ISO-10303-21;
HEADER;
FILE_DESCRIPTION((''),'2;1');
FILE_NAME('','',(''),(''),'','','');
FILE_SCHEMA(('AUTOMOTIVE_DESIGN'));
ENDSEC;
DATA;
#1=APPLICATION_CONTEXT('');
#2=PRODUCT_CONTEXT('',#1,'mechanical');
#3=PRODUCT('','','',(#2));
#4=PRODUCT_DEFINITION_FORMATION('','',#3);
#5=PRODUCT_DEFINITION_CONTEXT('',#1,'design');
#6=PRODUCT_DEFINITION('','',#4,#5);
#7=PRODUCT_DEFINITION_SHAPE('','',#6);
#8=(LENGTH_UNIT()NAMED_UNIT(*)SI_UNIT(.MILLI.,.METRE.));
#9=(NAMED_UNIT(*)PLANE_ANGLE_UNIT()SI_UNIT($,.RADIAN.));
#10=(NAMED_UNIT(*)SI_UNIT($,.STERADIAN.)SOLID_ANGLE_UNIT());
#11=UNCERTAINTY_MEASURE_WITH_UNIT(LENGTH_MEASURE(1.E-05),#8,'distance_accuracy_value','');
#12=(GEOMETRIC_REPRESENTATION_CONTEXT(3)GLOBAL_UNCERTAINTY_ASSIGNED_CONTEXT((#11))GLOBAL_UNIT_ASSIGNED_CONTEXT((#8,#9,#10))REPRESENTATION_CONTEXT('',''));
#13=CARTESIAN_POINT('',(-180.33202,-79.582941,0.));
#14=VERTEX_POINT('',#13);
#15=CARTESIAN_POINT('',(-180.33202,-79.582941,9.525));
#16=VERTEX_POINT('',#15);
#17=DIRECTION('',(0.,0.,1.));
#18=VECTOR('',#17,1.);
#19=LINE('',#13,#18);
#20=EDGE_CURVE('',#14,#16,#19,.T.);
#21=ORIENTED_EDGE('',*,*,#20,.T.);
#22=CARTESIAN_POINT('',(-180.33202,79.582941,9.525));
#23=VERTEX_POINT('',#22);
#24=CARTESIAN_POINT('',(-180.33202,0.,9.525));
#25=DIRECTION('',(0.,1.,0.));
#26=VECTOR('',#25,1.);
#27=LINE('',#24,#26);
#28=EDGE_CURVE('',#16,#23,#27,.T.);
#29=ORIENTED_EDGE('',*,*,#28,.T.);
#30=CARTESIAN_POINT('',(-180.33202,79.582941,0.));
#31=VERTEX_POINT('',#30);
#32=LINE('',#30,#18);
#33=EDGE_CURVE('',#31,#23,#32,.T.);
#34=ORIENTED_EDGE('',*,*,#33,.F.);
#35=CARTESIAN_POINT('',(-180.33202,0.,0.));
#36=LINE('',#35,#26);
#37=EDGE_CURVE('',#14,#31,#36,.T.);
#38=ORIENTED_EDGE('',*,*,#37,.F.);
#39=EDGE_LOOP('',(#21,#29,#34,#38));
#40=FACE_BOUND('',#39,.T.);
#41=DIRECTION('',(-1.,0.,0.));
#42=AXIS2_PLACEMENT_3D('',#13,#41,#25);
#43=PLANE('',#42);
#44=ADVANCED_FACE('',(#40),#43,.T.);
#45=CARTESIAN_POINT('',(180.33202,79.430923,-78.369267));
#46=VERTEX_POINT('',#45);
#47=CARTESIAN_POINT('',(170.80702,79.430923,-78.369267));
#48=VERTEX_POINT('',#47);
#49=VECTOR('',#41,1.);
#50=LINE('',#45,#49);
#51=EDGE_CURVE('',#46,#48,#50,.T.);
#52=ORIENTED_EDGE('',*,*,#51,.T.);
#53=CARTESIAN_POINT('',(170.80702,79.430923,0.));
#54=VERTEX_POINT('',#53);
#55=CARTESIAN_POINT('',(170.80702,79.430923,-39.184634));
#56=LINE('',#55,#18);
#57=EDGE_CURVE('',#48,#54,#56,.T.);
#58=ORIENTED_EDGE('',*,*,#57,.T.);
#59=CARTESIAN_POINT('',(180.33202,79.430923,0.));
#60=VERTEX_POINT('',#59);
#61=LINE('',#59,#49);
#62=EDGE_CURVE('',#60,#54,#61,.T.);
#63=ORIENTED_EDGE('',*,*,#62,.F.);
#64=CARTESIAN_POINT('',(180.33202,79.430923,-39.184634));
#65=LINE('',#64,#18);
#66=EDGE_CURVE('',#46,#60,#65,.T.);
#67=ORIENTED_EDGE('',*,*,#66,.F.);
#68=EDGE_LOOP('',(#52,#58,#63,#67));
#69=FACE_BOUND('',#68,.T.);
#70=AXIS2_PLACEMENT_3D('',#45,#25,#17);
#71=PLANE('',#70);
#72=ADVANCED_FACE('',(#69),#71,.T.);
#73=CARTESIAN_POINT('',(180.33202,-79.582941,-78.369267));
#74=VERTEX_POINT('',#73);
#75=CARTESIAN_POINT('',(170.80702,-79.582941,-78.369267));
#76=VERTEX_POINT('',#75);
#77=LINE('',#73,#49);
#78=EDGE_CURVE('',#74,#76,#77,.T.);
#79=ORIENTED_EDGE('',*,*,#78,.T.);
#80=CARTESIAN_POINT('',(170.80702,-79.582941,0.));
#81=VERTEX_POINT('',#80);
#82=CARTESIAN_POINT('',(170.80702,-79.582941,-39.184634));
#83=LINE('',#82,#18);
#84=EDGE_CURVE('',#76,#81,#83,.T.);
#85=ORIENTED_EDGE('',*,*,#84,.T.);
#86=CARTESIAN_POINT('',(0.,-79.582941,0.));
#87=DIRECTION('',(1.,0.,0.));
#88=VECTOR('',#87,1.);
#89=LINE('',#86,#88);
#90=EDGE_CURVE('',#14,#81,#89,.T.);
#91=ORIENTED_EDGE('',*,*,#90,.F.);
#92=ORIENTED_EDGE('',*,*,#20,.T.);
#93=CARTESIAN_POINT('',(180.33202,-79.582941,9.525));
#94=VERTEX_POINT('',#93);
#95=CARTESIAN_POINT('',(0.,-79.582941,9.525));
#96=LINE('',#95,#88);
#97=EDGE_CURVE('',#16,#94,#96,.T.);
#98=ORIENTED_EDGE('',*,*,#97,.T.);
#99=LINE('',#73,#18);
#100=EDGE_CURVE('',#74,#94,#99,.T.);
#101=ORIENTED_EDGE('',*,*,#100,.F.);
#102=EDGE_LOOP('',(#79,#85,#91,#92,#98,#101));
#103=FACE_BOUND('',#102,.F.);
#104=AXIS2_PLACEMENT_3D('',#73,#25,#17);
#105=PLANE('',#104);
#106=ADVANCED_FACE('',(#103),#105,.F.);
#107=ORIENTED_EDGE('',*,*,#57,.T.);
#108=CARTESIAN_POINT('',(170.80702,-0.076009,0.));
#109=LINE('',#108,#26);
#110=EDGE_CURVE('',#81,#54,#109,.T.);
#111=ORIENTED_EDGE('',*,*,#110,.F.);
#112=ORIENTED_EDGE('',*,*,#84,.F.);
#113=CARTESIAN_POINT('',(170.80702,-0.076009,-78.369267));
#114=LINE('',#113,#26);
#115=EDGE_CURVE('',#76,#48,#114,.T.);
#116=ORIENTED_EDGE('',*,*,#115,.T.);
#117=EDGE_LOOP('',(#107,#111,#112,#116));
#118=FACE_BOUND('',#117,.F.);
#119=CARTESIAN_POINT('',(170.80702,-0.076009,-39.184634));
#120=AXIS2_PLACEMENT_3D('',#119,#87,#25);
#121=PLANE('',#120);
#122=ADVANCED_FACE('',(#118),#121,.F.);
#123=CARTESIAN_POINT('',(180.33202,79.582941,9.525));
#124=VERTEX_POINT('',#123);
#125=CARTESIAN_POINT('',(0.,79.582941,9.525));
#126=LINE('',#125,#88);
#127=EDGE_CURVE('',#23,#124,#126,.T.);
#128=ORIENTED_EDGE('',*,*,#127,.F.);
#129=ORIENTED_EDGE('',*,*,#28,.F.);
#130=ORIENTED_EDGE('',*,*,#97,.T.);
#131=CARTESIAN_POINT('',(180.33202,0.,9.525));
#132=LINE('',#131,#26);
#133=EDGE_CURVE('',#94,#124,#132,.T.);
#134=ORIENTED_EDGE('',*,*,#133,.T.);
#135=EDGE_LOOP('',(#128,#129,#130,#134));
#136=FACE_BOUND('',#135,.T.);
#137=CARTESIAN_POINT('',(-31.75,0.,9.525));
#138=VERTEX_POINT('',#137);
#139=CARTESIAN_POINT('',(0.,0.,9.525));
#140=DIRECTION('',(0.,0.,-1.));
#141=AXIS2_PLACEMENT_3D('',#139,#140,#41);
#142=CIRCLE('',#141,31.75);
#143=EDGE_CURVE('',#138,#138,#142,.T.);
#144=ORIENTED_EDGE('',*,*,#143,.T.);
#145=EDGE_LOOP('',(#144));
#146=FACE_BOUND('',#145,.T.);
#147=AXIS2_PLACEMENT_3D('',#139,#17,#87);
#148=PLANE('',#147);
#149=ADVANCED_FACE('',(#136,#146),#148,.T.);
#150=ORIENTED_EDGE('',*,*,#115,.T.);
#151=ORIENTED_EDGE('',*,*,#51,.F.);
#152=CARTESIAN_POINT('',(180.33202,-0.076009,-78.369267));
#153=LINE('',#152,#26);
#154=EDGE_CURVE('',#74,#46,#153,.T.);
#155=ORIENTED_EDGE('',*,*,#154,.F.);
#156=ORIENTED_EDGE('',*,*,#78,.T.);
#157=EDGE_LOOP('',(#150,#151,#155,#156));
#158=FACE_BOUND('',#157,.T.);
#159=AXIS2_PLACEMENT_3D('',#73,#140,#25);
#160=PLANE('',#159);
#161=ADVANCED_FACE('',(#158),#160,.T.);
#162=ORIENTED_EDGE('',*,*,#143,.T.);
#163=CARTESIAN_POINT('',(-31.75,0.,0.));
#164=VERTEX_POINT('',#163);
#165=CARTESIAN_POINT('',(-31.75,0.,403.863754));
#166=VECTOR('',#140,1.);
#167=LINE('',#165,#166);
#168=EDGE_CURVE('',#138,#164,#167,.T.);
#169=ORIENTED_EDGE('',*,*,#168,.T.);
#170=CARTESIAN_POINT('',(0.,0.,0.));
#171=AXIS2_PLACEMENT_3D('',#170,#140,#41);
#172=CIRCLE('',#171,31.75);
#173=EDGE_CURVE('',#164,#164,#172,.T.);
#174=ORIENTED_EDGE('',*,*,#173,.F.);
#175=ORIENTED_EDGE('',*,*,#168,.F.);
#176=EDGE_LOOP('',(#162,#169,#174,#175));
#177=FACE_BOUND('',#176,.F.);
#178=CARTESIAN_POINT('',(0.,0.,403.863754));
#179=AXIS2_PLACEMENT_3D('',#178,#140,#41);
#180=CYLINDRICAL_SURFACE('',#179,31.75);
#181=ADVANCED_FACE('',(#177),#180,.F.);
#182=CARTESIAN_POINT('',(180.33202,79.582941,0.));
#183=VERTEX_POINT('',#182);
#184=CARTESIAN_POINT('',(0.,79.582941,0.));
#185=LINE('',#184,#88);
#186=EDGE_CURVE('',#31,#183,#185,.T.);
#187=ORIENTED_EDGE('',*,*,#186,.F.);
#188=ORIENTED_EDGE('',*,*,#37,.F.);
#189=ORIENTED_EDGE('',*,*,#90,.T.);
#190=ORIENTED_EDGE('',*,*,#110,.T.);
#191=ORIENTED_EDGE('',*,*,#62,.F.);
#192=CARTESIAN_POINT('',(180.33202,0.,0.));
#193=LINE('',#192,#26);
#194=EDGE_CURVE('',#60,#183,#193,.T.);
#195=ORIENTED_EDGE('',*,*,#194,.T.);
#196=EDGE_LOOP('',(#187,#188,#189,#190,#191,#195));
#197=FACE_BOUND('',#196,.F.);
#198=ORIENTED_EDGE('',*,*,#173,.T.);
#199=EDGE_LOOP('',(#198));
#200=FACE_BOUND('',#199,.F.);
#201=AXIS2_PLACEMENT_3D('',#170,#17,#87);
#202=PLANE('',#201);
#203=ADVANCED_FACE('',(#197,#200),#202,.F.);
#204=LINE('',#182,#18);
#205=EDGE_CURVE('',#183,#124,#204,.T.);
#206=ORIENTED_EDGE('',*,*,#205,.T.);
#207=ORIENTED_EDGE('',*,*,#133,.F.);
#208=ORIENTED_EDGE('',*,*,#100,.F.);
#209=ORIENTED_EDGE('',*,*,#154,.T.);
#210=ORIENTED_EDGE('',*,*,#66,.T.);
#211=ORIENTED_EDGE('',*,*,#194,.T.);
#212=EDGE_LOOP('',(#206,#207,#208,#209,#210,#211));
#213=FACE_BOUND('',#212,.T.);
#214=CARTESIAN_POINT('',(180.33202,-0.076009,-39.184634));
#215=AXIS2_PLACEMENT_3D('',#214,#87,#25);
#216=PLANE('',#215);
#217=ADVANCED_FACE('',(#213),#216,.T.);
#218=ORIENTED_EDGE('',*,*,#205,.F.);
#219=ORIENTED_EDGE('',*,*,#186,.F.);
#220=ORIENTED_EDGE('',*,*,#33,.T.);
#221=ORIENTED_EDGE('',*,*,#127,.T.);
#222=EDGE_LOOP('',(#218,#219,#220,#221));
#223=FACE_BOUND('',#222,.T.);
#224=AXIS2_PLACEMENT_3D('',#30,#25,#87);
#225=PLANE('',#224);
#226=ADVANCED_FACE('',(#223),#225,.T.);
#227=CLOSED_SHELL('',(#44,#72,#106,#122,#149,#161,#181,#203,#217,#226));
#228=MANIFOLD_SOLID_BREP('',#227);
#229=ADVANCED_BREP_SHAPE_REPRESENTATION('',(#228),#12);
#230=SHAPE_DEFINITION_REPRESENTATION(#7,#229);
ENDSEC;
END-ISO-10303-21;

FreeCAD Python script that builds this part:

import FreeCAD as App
import Part
import Sketcher
from FreeCAD import Vector
Q = App.Units.Quantity

doc = App.newDocument("Part")
body = doc.addObject("PartDesign::Body", "Body")

# Sketch on XY plane
sketch1 = body.newObject("Sketcher::SketchObject", "Sketch")
sketch1.AttachmentSupport = (doc.getObject("XY_Plane"), [""])
sketch1.MapMode = "FlatFace"
sketch1.addGeometry([
    Part.LineSegment(Vector(-180, 80, 0), Vector(-180, -80, 0)),
    Part.LineSegment(Vector(-180, -80, 0), Vector(180, -80, 0)),
    Part.LineSegment(Vector(180, -80, 0), Vector(180, 80, 0)),
    Part.LineSegment(Vector(180, 80, 0), Vector(-180, 80, 0)),
], False)
sketch1.addConstraint([
    Sketcher.Constraint("Coincident", 0, 2, 1, 1),
    Sketcher.Constraint("Coincident", 1, 2, 2, 1),
    Sketcher.Constraint("Coincident", 2, 2, 3, 1),
    Sketcher.Constraint("Coincident", 3, 2, 0, 1),
    Sketcher.Constraint("Vertical", 0),
    Sketcher.Constraint("Horizontal", 1),
    Sketcher.Constraint("Vertical", 2),
    Sketcher.Constraint("Horizontal", 3),
    Sketcher.Constraint("Symmetric", 0, 2, 2, 2, -1, 1),
    Sketcher.Constraint("DistanceX", 1, 1, 1, 2, Q("360.66404 mm")),
    Sketcher.Constraint("DistanceY", 0, 2, 0, 1, Q("159.165882 mm")),
])
pad1 = body.newObject("PartDesign::Pad", "Pad")
pad1.Profile = sketch1
pad1.Length = Q("0.375 in")

# Sketch on XY plane
sketch2 = body.newObject("Sketcher::SketchObject", "Sketch001")
sketch2.AttachmentSupport = (doc.getObject("XY_Plane"), [""])
sketch2.MapMode = "FlatFace"
sketch2.AttachmentOffset = App.Placement(Vector(0, 0, 0.375 * 25.4), App.Rotation())
sketch2.addGeometry(Part.Circle(Vector(0, 0, 0), Vector(0, 0, 1), 32), False)
sketch2.addConstraint([
    Sketcher.Constraint("Coincident", 0, 3, -1, 1),
    Sketcher.Constraint("Diameter", 0, Q("2.5 in")),
])
doc.recompute()
hole = body.newObject("PartDesign::Hole", "Hole")
hole.Profile = sketch2
hole.ThreadType = "None"
hole.Diameter = Q("2.5 in")
hole.DepthType = "ThroughAll"

# Sketch on YZ plane
sketch3 = body.newObject("Sketcher::SketchObject", "Sketch002")
sketch3.AttachmentSupport = (doc.getObject("YZ_Plane"), [""])
sketch3.MapMode = "FlatFace"
sketch3.AttachmentOffset = App.Placement(Vector(0, 0, 180.33202), App.Rotation())
sketch3.addGeometry([
    Part.LineSegment(Vector(-80, 0, 0), Vector(-80, -78, 0)),
    Part.LineSegment(Vector(-80, -78, 0), Vector(79, -78, 0)),
    Part.LineSegment(Vector(79, -78, 0), Vector(79, 0, 0)),
    Part.LineSegment(Vector(79, 0, 0), Vector(-80, 0, 0)),
], False)
sketch3.addConstraint([
    Sketcher.Constraint("Coincident", 0, 2, 1, 1),
    Sketcher.Constraint("Coincident", 1, 2, 2, 1),
    Sketcher.Constraint("Coincident", 2, 2, 3, 1),
    Sketcher.Constraint("Coincident", 3, 2, 0, 1),
    Sketcher.Constraint("Vertical", 0),
    Sketcher.Constraint("Horizontal", 1),
    Sketcher.Constraint("Vertical", 2),
    Sketcher.Constraint("Horizontal", 3),
    Sketcher.Constraint("PointOnObject", 2, 2, -1),
    Sketcher.Constraint("DistanceX", 1, 1, 1, 2, Q("159.013864 mm")),
    Sketcher.Constraint("DistanceY", 0, 2, 0, 1, Q("78.369267 mm")),
    Sketcher.Constraint("DistanceX", 0, 2, -1, 1, Q("79.582941 mm")),
])
pad2 = body.newObject("PartDesign::Pad", "Pad001")
pad2.Profile = sketch3
pad2.Length = Q("0.375 in")
pad2.Reversed = True

doc.recompute()
